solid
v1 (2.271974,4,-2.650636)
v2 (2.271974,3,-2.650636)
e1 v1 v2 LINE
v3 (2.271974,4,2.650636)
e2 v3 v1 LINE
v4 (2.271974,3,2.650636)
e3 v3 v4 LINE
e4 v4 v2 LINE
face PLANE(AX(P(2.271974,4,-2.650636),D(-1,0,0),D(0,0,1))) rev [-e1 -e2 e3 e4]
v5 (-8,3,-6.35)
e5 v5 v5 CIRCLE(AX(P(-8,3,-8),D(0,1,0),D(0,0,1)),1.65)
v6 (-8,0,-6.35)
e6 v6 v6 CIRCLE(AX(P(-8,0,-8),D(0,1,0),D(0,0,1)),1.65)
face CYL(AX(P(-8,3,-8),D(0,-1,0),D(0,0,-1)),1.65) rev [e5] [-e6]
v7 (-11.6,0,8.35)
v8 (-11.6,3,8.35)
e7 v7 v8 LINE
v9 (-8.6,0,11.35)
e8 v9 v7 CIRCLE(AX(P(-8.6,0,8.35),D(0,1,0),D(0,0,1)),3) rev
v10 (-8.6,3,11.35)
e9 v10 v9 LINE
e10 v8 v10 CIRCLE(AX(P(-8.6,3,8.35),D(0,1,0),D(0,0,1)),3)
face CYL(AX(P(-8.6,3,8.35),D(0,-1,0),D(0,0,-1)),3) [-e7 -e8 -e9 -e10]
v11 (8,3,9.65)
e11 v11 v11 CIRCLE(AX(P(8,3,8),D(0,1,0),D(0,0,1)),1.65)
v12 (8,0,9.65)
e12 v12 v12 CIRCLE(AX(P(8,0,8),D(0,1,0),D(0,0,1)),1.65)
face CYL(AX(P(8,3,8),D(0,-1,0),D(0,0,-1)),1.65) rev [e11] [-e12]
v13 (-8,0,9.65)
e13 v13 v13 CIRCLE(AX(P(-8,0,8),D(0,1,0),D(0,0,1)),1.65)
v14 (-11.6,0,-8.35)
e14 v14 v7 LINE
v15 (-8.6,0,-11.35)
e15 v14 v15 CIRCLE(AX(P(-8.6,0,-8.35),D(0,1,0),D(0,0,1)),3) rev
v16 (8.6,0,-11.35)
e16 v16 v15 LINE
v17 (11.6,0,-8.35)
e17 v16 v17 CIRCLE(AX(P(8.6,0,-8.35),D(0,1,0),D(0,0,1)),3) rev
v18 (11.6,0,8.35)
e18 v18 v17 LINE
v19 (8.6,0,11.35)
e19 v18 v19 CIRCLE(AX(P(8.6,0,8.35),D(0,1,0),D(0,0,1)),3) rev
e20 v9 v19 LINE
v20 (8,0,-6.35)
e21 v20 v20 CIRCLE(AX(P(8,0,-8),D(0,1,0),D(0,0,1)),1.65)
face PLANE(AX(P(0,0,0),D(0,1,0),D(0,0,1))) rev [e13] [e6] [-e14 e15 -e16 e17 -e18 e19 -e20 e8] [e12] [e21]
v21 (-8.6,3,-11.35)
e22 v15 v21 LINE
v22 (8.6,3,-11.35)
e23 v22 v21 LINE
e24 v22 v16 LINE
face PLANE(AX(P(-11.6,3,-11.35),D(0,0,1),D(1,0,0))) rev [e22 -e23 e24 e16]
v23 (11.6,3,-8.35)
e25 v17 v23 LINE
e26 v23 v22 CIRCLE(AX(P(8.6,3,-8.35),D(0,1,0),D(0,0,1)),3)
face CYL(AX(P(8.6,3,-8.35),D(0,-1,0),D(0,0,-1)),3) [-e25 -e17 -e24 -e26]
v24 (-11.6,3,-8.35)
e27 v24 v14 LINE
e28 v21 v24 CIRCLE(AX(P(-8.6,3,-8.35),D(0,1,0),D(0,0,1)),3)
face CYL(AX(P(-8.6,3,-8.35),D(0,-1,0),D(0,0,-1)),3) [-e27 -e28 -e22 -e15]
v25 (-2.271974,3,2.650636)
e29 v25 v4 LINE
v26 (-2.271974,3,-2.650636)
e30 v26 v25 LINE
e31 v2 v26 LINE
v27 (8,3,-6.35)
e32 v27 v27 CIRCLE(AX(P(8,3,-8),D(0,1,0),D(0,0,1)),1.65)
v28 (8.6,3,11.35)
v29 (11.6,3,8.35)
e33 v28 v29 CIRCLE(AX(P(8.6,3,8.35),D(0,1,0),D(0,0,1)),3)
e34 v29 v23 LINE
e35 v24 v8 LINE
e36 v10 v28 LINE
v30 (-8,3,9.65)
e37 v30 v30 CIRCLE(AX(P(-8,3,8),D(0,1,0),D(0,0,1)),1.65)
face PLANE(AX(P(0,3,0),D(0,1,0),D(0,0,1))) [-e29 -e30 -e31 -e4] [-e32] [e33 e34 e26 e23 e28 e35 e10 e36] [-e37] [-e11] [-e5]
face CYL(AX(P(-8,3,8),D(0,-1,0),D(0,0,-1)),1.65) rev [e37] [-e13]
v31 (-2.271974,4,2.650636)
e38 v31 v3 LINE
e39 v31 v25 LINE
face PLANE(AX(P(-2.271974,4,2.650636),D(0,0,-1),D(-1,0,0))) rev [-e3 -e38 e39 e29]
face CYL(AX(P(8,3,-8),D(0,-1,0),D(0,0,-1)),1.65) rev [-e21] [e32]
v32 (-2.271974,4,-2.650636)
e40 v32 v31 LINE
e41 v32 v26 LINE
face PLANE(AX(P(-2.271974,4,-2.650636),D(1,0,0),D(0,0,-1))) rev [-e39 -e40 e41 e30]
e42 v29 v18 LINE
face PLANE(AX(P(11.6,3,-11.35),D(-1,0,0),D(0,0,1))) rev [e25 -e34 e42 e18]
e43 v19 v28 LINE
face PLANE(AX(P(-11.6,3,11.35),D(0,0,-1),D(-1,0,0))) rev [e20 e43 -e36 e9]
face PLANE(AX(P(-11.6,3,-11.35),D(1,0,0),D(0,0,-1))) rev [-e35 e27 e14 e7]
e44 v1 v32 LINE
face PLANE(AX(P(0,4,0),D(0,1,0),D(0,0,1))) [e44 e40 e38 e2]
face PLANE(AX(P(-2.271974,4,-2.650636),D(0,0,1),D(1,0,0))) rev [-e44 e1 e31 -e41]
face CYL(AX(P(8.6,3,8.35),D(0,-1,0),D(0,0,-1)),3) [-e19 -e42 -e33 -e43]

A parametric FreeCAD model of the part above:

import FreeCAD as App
import Part
import Sketcher

V = App.Vector
Q = App.Units.Quantity


def edges_at(feature, points):
    """Names of the edges that pass closest to the given points."""
    edges = feature.Shape.Edges
    near = lambda p: min(range(len(edges)), key=lambda i: edges[i].distToShape(Part.Vertex(*p))[0])
    return sorted({f"Edge{near(p) + 1}" for p in points})

doc = App.newDocument("Part")
params = doc.addObject("Spreadsheet::Sheet", "Params")
for row, (alias, value) in enumerate([
    ("sketch1_diameter", "3.3 mm"),
    ("sketch1_width", "23.2 mm"),
    ("sketch1_height", "22.7 mm"),
    ("pad1_length", "3 mm"),
    ("fillet_radius", "3 mm"),
    ("pad2_length", "1 mm"),
], start=1):
    params.set(f"A{row}", alias)
    params.set(f"B{row}", "=" + value)
    params.setAlias(f"B{row}", alias)

body = doc.addObject("PartDesign::Body", "Body")

# Sketch on XZ plane
sketch1 = body.newObject("Sketcher::SketchObject", "Sketch")
sketch1.AttachmentSupport = (doc.getObject("XZ_Plane"), [""])
sketch1.MapMode = "FlatFace"
sketch1.addGeometry([
    Part.LineSegment(V(-11.6, -11.35, 0), V(-11.6, 11.35, 0)),  # 0
    Part.LineSegment(V(-11.6, 11.35, 0), V(11.6, 11.35, 0)),  # 1
    Part.LineSegment(V(11.6, 11.35, 0), V(11.6, -11.35, 0)),  # 2
    Part.LineSegment(V(11.6, -11.35, 0), V(-11.6, -11.35, 0)),  # 3
    Part.Circle(V(-8, 8, 0), V(0, 0, 1), 1.65),  # 4
    Part.Circle(V(8, 8, 0), V(0, 0, 1), 1.65),  # 5
    Part.Circle(V(-8, -8, 0), V(0, 0, 1), 1.65),  # 6
    Part.Circle(V(8, -8, 0), V(0, 0, 1), 1.65),  # 7
], False)
sketch1.addConstraint([
    Sketcher.Constraint("Coincident", 0, 2, 1, 1),
    Sketcher.Constraint("Coincident", 1, 2, 2, 1),
    Sketcher.Constraint("Coincident", 2, 2, 3, 1),
    Sketcher.Constraint("Coincident", 3, 2, 0, 1),
    Sketcher.Constraint("Vertical", 0),
    Sketcher.Constraint("Horizontal", 1),
    Sketcher.Constraint("Vertical", 2),
    Sketcher.Constraint("Horizontal", 3),
    Sketcher.Constraint("Equal", 4, 5),
    Sketcher.Constraint("Equal", 5, 6),
    Sketcher.Constraint("Equal", 6, 7),
    Sketcher.Constraint("Symmetric", 5, 3, 6, 3, -1, 1),
    Sketcher.Constraint("Symmetric", 4, 3, 7, 3, -1, 1),
    Sketcher.Constraint("Symmetric", 0, 2, 2, 2, -1, 1),
    Sketcher.Constraint("Symmetric", 4, 3, 5, 3, -2),
    Sketcher.Constraint("Diameter", 4, Q("3.3 mm")),
    Sketcher.Constraint("DistanceX", 1, 1, 1, 2, Q("23.2 mm")),
    Sketcher.Constraint("DistanceY", 0, 1, 0, 2, Q("22.7 mm")),
    Sketcher.Constraint("DistanceX", 4, 3, -1, 1, Q("8 mm")),
    Sketcher.Constraint("DistanceY", -1, 1, 4, 3, Q("8 mm")),
])
sketch1.setExpression("Constraints[15]", "Params.sketch1_diameter")
sketch1.setExpression("Constraints[16]", "Params.sketch1_width")
sketch1.setExpression("Constraints[17]", "Params.sketch1_height")
pad1 = body.newObject("PartDesign::Pad", "Pad")
pad1.Profile = sketch1
pad1.setExpression("Length", "Params.pad1_length")
pad1.Reversed = True
doc.recompute()

fillet = body.newObject("PartDesign::Fillet", "Fillet")
fillet.Base = (pad1, edges_at(pad1, [
    (11.6, 1.5, 11.35),
    (-11.6, 1.5, 11.35),
    (-11.6, 1.5, -11.35),
    (11.6, 1.5, -11.35),
]))
fillet.setExpression("Radius", "Params.fillet_radius")

# Sketch on XZ plane
sketch2 = body.newObject("Sketcher::SketchObject", "Sketch001")
sketch2.AttachmentSupport = (doc.getObject("XZ_Plane"), [""])
sketch2.MapMode = "FlatFace"
sketch2.AttachmentOffset = App.Placement(V(0, 0, -3), App.Rotation())
sketch2.addGeometry([
    Part.LineSegment(V(-2.271974, -2.650636, 0), V(-2.271974, 2.650636, 0)),
    Part.LineSegment(V(-2.271974, 2.650636, 0), V(2.271974, 2.650636, 0)),
    Part.LineSegment(V(2.271974, 2.650636, 0), V(2.271974, -2.650636, 0)),
    Part.LineSegment(V(2.271974, -2.650636, 0), V(-2.271974, -2.650636, 0)),
], False)
sketch2.addConstraint([
    Sketcher.Constraint("Coincident", 0, 2, 1, 1),
    Sketcher.Constraint("Coincident", 1, 2, 2, 1),
    Sketcher.Constraint("Coincident", 2, 2, 3, 1),
    Sketcher.Constraint("Coincident", 3, 2, 0, 1),
    Sketcher.Constraint("Vertical", 0),
    Sketcher.Constraint("Horizontal", 1),
    Sketcher.Constraint("Vertical", 2),
    Sketcher.Constraint("Horizontal", 3),
    Sketcher.Constraint("Symmetric", 0, 2, 2, 2, -1, 1),
    Sketcher.Constraint("DistanceY", 0, 1, 0, 2, Q("5.301272 mm")),
    Sketcher.Constraint("DistanceX", 1, 1, 1, 2, Q("4.543947 mm")),
])
pad2 = body.newObject("PartDesign::Pad", "Pad001")
pad2.Profile = sketch2
pad2.setExpression("Length", "Params.pad2_length")
pad2.Reversed = True

doc.recompute()
